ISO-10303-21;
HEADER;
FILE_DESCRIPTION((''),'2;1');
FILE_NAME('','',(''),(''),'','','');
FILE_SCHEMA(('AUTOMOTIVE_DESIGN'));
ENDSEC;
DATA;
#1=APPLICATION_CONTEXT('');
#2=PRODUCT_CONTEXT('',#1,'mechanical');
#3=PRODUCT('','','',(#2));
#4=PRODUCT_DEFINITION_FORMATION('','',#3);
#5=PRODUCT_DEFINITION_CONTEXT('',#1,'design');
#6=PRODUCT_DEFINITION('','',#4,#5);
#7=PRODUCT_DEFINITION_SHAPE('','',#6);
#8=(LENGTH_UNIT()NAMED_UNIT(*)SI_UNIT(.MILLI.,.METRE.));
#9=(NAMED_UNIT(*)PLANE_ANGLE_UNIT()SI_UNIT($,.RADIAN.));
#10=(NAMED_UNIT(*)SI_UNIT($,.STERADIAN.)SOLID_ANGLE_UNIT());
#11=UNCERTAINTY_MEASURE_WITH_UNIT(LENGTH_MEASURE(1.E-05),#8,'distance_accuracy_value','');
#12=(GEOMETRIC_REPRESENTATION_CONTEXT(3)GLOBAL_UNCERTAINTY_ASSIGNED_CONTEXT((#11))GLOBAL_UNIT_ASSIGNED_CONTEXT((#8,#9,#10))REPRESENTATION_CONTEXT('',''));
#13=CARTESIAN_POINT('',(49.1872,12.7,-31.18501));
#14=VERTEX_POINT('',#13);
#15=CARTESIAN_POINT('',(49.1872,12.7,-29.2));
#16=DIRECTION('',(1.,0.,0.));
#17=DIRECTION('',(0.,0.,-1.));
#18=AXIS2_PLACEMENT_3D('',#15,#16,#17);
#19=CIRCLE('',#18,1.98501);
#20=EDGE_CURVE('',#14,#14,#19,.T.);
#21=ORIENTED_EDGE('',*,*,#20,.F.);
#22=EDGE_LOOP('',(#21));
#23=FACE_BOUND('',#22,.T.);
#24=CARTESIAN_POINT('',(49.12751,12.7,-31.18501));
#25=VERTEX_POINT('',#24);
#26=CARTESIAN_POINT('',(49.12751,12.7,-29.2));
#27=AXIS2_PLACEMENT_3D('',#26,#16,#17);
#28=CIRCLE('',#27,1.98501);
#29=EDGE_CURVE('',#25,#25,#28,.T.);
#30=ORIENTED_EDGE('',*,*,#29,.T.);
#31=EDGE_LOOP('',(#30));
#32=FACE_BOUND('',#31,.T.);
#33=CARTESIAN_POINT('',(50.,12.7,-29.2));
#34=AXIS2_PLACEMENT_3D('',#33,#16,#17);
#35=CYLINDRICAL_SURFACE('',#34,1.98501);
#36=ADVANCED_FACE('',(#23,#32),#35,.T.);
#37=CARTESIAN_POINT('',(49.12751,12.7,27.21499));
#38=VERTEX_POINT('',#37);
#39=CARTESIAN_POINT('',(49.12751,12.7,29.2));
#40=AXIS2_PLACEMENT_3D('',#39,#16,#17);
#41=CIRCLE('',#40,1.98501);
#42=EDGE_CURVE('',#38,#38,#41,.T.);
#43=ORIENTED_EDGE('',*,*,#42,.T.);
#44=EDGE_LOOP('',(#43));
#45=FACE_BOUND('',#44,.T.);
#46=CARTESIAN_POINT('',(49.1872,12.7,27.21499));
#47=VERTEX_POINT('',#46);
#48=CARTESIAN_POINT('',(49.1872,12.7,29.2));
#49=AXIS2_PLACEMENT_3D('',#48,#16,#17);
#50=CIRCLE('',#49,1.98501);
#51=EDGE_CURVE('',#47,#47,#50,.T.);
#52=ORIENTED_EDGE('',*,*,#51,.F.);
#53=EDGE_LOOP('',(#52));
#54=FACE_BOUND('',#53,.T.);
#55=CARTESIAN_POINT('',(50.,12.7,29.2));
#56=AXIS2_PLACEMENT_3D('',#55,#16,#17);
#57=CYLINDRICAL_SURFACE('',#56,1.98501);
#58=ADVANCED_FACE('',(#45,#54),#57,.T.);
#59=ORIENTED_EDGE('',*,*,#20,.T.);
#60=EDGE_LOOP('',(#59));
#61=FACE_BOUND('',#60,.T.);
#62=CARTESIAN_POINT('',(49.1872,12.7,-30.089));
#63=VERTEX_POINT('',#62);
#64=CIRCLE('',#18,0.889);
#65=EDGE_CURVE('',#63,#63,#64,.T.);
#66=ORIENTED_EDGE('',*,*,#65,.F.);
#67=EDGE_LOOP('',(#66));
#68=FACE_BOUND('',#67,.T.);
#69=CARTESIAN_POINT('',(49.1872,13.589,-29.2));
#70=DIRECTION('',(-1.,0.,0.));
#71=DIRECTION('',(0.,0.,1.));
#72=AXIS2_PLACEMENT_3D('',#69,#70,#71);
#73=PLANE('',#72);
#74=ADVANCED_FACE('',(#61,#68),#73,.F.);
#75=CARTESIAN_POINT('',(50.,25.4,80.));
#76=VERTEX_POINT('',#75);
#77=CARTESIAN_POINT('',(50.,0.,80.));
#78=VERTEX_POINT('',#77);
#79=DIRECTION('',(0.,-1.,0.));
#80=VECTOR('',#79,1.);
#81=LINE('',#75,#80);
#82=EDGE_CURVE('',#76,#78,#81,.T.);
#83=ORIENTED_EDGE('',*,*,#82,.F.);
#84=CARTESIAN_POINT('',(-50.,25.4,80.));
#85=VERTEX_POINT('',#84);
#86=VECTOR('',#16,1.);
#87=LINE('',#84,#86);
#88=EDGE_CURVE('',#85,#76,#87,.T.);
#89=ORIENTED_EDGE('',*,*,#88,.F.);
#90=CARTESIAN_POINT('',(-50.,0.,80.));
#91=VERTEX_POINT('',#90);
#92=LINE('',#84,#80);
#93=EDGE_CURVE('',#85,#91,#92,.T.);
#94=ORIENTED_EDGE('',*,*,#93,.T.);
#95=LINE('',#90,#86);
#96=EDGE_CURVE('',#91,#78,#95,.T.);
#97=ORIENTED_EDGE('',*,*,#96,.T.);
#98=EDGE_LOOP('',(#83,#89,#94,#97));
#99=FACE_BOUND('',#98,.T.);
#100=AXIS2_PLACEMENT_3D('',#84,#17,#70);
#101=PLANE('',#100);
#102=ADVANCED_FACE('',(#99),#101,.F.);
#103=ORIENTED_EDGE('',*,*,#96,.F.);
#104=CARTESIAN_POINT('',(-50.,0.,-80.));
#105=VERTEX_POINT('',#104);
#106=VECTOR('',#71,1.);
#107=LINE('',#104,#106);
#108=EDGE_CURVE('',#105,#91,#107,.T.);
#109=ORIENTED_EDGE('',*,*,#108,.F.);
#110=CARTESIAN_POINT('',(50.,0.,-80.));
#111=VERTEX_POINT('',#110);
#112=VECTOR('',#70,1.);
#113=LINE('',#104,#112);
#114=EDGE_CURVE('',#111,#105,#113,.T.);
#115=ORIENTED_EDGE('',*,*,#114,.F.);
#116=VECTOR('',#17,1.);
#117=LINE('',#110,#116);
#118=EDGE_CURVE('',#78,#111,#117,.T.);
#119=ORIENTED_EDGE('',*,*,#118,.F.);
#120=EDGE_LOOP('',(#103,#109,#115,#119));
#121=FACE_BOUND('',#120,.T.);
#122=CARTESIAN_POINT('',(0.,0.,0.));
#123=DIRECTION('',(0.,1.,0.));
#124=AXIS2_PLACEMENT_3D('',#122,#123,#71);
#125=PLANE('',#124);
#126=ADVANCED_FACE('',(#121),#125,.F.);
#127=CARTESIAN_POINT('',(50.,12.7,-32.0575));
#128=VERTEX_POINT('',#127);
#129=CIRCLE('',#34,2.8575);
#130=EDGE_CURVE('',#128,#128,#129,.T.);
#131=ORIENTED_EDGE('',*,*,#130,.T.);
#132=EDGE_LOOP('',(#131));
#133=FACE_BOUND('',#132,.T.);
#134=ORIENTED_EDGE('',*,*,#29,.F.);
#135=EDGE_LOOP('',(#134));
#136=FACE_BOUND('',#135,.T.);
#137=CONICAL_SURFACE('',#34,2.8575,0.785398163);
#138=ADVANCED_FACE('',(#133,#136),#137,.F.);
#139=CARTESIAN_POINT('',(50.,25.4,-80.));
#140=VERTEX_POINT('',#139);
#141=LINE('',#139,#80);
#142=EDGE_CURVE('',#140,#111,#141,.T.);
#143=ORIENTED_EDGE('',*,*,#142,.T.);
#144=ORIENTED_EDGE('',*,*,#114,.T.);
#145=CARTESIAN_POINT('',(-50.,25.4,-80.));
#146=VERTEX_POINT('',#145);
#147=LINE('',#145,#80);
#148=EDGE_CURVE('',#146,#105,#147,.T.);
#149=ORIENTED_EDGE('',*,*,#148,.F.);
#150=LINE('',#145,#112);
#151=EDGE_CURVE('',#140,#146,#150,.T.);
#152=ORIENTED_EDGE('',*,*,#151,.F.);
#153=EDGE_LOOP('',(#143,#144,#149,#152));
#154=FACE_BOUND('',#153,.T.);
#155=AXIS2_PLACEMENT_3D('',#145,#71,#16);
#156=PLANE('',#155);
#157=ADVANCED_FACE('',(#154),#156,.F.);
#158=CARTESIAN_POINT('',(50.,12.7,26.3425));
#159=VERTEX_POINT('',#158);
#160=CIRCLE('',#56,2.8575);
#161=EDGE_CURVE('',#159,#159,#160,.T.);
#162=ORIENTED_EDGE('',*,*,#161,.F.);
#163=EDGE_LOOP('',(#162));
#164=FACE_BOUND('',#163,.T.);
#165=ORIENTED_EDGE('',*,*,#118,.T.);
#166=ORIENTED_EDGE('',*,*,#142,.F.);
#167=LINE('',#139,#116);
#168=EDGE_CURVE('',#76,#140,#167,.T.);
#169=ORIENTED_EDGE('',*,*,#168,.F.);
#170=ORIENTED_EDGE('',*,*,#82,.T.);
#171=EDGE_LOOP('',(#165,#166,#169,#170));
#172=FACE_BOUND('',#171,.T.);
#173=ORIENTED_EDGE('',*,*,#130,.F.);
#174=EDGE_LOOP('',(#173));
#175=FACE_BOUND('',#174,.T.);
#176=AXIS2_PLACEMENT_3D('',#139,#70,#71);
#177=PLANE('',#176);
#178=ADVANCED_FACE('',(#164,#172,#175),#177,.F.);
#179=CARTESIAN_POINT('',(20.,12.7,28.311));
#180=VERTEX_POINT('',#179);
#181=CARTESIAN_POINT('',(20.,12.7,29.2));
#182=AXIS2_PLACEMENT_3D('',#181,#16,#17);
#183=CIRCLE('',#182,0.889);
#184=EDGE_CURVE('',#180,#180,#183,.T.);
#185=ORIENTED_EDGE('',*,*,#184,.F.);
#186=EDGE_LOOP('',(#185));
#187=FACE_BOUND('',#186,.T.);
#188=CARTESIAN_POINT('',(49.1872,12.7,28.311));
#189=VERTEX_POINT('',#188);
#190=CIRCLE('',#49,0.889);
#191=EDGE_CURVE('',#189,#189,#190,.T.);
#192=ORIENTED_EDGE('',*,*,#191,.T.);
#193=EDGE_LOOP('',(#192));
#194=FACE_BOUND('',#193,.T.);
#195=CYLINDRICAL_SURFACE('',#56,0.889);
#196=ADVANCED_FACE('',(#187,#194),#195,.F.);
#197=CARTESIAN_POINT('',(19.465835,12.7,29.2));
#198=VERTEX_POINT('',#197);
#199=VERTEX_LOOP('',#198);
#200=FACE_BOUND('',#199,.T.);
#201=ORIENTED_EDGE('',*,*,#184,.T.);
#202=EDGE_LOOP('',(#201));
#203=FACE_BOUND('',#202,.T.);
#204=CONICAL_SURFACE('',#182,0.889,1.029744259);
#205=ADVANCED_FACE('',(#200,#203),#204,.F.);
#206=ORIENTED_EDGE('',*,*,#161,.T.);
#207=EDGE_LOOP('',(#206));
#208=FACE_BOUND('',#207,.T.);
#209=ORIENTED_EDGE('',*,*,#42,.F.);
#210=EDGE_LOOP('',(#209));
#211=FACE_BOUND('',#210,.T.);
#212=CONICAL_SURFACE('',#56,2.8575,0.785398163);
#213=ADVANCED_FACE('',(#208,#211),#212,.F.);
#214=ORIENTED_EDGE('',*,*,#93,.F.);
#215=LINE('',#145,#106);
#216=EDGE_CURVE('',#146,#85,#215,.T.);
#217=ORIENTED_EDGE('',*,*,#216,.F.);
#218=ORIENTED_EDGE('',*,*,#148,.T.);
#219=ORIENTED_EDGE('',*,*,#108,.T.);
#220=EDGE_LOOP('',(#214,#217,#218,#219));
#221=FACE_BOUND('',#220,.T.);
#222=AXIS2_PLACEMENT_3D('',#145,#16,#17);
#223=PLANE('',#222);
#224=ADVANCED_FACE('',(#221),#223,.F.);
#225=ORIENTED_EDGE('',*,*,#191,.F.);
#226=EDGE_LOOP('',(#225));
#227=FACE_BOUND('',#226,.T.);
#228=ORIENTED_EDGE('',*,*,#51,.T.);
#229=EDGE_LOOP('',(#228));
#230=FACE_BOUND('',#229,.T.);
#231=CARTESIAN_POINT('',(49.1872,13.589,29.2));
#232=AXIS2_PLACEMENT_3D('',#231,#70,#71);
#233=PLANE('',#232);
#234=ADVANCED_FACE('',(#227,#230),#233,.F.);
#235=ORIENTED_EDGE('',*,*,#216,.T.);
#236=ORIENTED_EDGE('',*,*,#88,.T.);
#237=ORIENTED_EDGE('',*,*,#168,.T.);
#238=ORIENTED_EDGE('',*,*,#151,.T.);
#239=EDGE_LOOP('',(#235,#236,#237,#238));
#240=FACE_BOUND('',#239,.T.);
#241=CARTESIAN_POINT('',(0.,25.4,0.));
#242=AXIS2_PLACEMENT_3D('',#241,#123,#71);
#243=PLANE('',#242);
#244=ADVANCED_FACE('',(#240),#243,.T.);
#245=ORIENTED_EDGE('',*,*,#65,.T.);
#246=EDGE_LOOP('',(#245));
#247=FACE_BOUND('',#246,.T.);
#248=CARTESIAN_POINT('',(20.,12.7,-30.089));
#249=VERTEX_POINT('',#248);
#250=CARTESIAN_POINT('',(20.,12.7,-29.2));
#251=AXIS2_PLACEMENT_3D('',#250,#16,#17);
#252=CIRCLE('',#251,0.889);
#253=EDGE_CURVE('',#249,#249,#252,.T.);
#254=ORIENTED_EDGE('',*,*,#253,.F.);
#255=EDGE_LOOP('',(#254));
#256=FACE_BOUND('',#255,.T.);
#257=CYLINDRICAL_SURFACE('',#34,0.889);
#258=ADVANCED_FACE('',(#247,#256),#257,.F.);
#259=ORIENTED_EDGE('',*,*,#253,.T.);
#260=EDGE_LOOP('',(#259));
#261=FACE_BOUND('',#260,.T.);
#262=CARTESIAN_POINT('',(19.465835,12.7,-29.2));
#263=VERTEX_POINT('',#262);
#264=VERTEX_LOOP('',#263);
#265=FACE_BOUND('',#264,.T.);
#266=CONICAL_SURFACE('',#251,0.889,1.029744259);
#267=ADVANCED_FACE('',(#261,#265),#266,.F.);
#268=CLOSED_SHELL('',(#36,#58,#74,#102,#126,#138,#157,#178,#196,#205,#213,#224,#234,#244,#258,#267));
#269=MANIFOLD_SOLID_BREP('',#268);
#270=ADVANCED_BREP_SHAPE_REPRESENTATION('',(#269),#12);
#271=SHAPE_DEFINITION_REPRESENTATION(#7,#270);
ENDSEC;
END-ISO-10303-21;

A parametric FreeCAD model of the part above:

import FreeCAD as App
import Part
import Sketcher

V = App.Vector
Q = App.Units.Quantity


def add_polygon(sketch, points):
    """Adds a closed chain of lines whose ends are joined by coincident constraints."""
    first, n = sketch.GeometryCount, len(points)
    for a, b in zip(points, points[1:] + points[:1]):
        sketch.addGeometry(Part.LineSegment(App.Vector(*a, 0), App.Vector(*b, 0)), False)
    for i in range(n):
        sketch.addConstraint(Sketcher.Constraint("Coincident", first + i, 2, first + (i + 1) % n, 1))

doc = App.newDocument("Part")
body = doc.addObject("PartDesign::Body", "Body")

# Sketch on XZ plane
sketch1 = body.newObject("Sketcher::SketchObject", "Sketch")
sketch1.AttachmentSupport = (doc.getObject("XZ_Plane"), [""])
sketch1.MapMode = "FlatFace"
add_polygon(sketch1, [(-50, -80), (-50, 80), (50, 80), (50, -80)])  # lines 0-3
sketch1.addConstraint(Sketcher.Constraint("Vertical", 0))
sketch1.addConstraint(Sketcher.Constraint("Horizontal", 1))
sketch1.addConstraint(Sketcher.Constraint("Vertical", 2))
sketch1.addConstraint(Sketcher.Constraint("Horizontal", 3))
sketch1.addConstraint(Sketcher.Constraint("Symmetric", 0, 2, 2, 2, -1, 1))
sketch1.addConstraint(Sketcher.Constraint("DistanceX", 1, 1, 1, 2, Q("100 mm")))
sketch1.addConstraint(Sketcher.Constraint("DistanceY", 0, 1, 0, 2, Q("160 mm")))
pad1 = body.newObject("PartDesign::Pad", "Pad")
pad1.Profile = sketch1
pad1.Length = 25.4
pad1.Reversed = True

# Sketch on XZ plane
sketch2 = body.newObject("Sketcher::SketchObject", "Sketch001")
sketch2.AttachmentSupport = (doc.getObject("XZ_Plane"), [""])
sketch2.MapMode = "FlatFace"
sketch2.AttachmentOffset = App.Placement(V(0, 0, -12.7), App.Rotation())
add_polygon(sketch2, [(19.47, 29.2), (50, 29.2), (50, 26.34), (49.13, 27.21), (49.19, 27.21), (49.19, 28.31), (20, 28.31)])  # lines 0-6
sketch2.addGeometry(Part.LineSegment(V(50, 29.2, 0), V(19.47, 29.2, 0)), True)  # axis
sketch2.addConstraint(Sketcher.Constraint("Horizontal", 0))
sketch2.addConstraint(Sketcher.Constraint("Vertical", 1))
sketch2.addConstraint(Sketcher.Constraint("Horizontal", 3))
sketch2.addConstraint(Sketcher.Constraint("Vertical", 4))
sketch2.addConstraint(Sketcher.Constraint("Horizontal", 5))
sketch2.addConstraint(Sketcher.Constraint("Horizontal", 7))
sketch2.addConstraint(Sketcher.Constraint("Coincident", 7, 1, 0, 2))
sketch2.addConstraint(Sketcher.Constraint("Equal", 0, 7))
sketch2.addConstraint(Sketcher.Constraint("Angle", 2, Q("135 deg")))
sketch2.addConstraint(Sketcher.Constraint("Angle", 6, Q("121 deg")))
sketch2.addConstraint(Sketcher.Constraint("DistanceX", -1, 1, 0, 2, Q("50 mm")))
sketch2.addConstraint(Sketcher.Constraint("DistanceX", -1, 1, 5, 2, Q("20 mm")))
sketch2.addConstraint(Sketcher.Constraint("DistanceY", -1, 1, 0, 2, Q("29.2 mm")))
sketch2.addConstraint(Sketcher.Constraint("DistanceX", 5, 2, 5, 1, Q("29.1872 mm")))
sketch2.addConstraint(Sketcher.Constraint("DistanceY", 1, 2, 1, 1, Q("2.8575 mm")))
sketch2.addConstraint(Sketcher.Constraint("DistanceY", -1, 1, 4, 2, Q("28.311 mm")))
sketch2.addConstraint(Sketcher.Constraint("DistanceX", 3, 1, 3, 2, Q("0.05969 mm")))
groove = body.newObject("PartDesign::Groove", "Groove")
groove.Profile = sketch2
groove.ReferenceAxis = (sketch2, ["Axis0"])
groove.Angle = 360
doc.recompute()

linearpattern = body.newObject("PartDesign::LinearPattern", "LinearPattern")
linearpattern.Originals = [groove]
linearpattern.Direction = (doc.getObject("Z_Axis"), [""])
linearpattern.Mode = "offset"
linearpattern.Offset = 58.4
linearpattern.Occurrences = 2
linearpattern.Reversed = True
body.Tip = linearpattern

doc.recompute()
